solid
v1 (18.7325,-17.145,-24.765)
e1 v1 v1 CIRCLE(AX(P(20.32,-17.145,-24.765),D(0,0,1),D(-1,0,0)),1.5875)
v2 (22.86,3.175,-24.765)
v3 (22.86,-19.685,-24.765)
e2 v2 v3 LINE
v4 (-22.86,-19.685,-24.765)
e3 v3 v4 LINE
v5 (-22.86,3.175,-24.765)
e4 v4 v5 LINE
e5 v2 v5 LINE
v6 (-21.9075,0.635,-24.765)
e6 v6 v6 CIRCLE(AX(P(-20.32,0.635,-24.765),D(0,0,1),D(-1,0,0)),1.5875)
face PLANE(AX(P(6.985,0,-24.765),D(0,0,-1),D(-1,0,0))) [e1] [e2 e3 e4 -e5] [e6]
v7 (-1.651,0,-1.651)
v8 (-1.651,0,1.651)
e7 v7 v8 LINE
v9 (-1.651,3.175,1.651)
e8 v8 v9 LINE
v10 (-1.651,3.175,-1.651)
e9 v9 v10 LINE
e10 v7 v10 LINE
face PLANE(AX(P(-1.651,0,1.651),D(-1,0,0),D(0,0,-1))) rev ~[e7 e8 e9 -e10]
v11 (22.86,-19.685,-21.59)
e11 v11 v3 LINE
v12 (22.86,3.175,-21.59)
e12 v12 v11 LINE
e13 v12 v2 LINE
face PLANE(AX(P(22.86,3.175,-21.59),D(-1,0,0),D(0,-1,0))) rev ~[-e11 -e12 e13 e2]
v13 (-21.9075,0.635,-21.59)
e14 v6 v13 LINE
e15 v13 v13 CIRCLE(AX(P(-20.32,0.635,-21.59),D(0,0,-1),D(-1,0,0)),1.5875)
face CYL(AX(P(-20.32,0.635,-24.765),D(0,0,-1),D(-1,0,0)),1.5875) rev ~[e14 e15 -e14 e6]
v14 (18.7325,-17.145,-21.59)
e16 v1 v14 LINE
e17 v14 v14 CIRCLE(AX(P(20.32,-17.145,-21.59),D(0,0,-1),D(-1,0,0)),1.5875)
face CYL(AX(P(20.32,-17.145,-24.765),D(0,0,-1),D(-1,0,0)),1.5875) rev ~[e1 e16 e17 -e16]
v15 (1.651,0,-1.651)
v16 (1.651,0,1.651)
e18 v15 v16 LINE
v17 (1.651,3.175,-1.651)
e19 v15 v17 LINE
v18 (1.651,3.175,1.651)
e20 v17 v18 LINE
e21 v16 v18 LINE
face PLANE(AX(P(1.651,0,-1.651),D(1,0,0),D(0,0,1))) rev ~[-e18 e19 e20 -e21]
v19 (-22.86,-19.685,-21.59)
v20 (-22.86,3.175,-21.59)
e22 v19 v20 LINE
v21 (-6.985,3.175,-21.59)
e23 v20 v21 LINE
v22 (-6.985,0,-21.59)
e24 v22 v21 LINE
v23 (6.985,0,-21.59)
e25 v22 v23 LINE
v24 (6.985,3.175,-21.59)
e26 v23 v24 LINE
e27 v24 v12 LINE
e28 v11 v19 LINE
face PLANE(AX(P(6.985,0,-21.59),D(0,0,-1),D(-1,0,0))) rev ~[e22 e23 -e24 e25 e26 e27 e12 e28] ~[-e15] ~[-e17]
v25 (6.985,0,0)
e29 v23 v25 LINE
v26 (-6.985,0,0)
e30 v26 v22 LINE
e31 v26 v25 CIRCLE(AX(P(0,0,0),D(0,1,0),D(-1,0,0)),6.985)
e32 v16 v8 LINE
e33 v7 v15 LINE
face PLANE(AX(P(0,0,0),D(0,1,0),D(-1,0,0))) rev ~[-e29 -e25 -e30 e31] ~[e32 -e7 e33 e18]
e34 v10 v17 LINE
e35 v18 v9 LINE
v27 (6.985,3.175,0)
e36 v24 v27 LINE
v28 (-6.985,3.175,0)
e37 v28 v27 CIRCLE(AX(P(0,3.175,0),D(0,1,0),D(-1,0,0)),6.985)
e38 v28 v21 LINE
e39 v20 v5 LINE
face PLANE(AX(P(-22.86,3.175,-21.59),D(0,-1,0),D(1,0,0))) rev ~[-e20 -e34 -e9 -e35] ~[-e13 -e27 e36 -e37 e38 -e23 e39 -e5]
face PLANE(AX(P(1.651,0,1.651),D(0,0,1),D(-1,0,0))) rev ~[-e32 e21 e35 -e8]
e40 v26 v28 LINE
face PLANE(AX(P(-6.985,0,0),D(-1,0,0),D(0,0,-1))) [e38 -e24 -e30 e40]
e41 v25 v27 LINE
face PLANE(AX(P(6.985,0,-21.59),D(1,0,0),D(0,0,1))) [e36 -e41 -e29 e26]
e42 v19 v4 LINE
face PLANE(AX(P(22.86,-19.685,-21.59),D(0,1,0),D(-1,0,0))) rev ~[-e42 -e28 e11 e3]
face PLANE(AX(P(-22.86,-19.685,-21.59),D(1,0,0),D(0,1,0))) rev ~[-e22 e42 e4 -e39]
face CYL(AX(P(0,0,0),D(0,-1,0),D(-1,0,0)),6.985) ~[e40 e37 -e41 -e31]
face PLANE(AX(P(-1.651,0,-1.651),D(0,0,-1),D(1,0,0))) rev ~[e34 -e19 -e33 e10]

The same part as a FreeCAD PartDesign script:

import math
import FreeCAD as App
import Part
import Sketcher

V = App.Vector
Q = App.Units.Quantity


def add_polygon(sketch, points):
    """Adds a closed chain of lines whose ends are joined by coincident constraints."""
    first, n = sketch.GeometryCount, len(points)
    for a, b in zip(points, points[1:] + points[:1]):
        sketch.addGeometry(Part.LineSegment(App.Vector(*a, 0), App.Vector(*b, 0)), False)
    for i in range(n):
        sketch.addConstraint(Sketcher.Constraint("Coincident", first + i, 2, first + (i + 1) % n, 1))

doc = App.newDocument("Part")
body = doc.addObject("PartDesign::Body", "Body")

# Sketch on XZ plane
sketch1 = doc.addObject("Sketcher::SketchObject", "Sketch")
body.addObject(sketch1)
sketch1.AttachmentSupport = (doc.XZ_Plane, [""])
sketch1.MapMode = "FlatFace"
sketch1.addGeometry(Part.ArcOfCircle(Part.Circle(V(0, 0, 0), V(0, 0, 1), 7), math.radians(0), math.radians(180)), False)  # 0
sketch1.addGeometry(Part.LineSegment(V(7, 0, 0), V(7, -21.6, 0)), False)  # 1
sketch1.addGeometry(Part.LineSegment(V(7, -21.6, 0), V(-7, -21.6, 0)), False)  # 2
sketch1.addGeometry(Part.LineSegment(V(-7, -21.6, 0), V(-7, 0, 0)), False)  # 3
add_polygon(sketch1, [(-1.7, 1.7), (-1.7, -1.7), (1.7, -1.7), (1.7, 1.7)])  # lines 4-7
sketch1.addConstraint(Sketcher.Constraint("Tangent", 0, 1, 1, 1))
sketch1.addConstraint(Sketcher.Constraint("Coincident", 1, 2, 2, 1))
sketch1.addConstraint(Sketcher.Constraint("Coincident", 2, 2, 3, 1))
sketch1.addConstraint(Sketcher.Constraint("Tangent", 3, 2, 0, 2))
sketch1.addConstraint(Sketcher.Constraint("Vertical", 1))
sketch1.addConstraint(Sketcher.Constraint("Horizontal", 2))
sketch1.addConstraint(Sketcher.Constraint("Vertical", 3))
sketch1.addConstraint(Sketcher.Constraint("Vertical", 4))
sketch1.addConstraint(Sketcher.Constraint("Horizontal", 5))
sketch1.addConstraint(Sketcher.Constraint("Vertical", 6))
sketch1.addConstraint(Sketcher.Constraint("Horizontal", 7))
sketch1.addConstraint(Sketcher.Constraint("Coincident", 0, 3, -1, 1))
sketch1.addConstraint(Sketcher.Constraint("Symmetric", 4, 2, 6, 2, -1, 1))
sketch1.addConstraint(Sketcher.Constraint("Equal", 7, 4))
sketch1.addConstraint(Sketcher.Constraint("Radius", 0, Q("0.275 in")))
sketch1.addConstraint(Sketcher.Constraint("DistanceX", 5, 1, 5, 2, Q("0.13 in")))
sketch1.addConstraint(Sketcher.Constraint("DistanceY", 1, 2, 1, 1, Q("0.85 in")))
pad1 = doc.addObject("PartDesign::Pad", "Pad")
body.addObject(pad1)
pad1.Profile = sketch1
pad1.Length = Q("0.125 in")
pad1.Reversed = True

# Sketch on XY plane
sketch2 = doc.addObject("Sketcher::SketchObject", "Sketch001")
body.addObject(sketch2)
sketch2.AttachmentSupport = (doc.XY_Plane, [""])
sketch2.MapMode = "FlatFace"
sketch2.AttachmentOffset = App.Placement(V(0, 0, -0.85 * 25.4), App.Rotation())
add_polygon(sketch2, [(-23, 3), (23, 3), (23, -20), (-23, -20)])  # lines 0-3
sketch2.addConstraint(Sketcher.Constraint("Horizontal", 0))
sketch2.addConstraint(Sketcher.Constraint("Vertical", 1))
sketch2.addConstraint(Sketcher.Constraint("Horizontal", 2))
sketch2.addConstraint(Sketcher.Constraint("Vertical", 3))
sketch2.addConstraint(Sketcher.Constraint("DistanceX", 0, 1, 0, 2, Q("1.8 in")))
sketch2.addConstraint(Sketcher.Constraint("DistanceY", 1, 2, 1, 1, Q("0.9 in")))
sketch2.addConstraint(Sketcher.Constraint("DistanceX", -1, 1, 0, 2, Q("0.9 in")))
sketch2.addConstraint(Sketcher.Constraint("DistanceY", -1, 1, 0, 2, Q("0.125 in")))
pad2 = doc.addObject("PartDesign::Pad", "Pad001")
body.addObject(pad2)
pad2.Profile = sketch2
pad2.Length = Q("0.125 in")
pad2.Reversed = True

# Sketch on XY plane
sketch3 = doc.addObject("Sketcher::SketchObject", "Sketch002")
body.addObject(sketch3)
sketch3.AttachmentSupport = (doc.XY_Plane, [""])
sketch3.MapMode = "FlatFace"
sketch3.AttachmentOffset = App.Placement(V(0, 0, -0.975 * 25.4), App.Rotation())
sketch3.addGeometry(Part.Circle(V(-20.3, 0.6, 0), V(0, 0, 1), 1.6), False)
sketch3.addGeometry(Part.Circle(V(20.3, -17.1, 0), V(0, 0, 1), 1.6), False)
sketch3.addConstraint(Sketcher.Constraint("Equal", 0, 1))
sketch3.addConstraint(Sketcher.Constraint("Diameter", 0, Q("0.125 in")))
sketch3.addConstraint(Sketcher.Constraint("DistanceX", 0, 3, -1, 1, Q("0.8 in")))
sketch3.addConstraint(Sketcher.Constraint("DistanceX", -1, 1, 1, 3, Q("0.8 in")))
sketch3.addConstraint(Sketcher.Constraint("DistanceY", 1, 3, 0, 3, Q("0.7 in")))
sketch3.addConstraint(Sketcher.Constraint("DistanceY", -1, 1, 0, 3, Q("0.025 in")))
pocket1 = doc.addObject("PartDesign::Pocket", "Pocket")
body.addObject(pocket1)
pocket1.Profile = sketch3
pocket1.Length = Q("0.125 in")
pocket1.Reversed = True

doc.recompute()
